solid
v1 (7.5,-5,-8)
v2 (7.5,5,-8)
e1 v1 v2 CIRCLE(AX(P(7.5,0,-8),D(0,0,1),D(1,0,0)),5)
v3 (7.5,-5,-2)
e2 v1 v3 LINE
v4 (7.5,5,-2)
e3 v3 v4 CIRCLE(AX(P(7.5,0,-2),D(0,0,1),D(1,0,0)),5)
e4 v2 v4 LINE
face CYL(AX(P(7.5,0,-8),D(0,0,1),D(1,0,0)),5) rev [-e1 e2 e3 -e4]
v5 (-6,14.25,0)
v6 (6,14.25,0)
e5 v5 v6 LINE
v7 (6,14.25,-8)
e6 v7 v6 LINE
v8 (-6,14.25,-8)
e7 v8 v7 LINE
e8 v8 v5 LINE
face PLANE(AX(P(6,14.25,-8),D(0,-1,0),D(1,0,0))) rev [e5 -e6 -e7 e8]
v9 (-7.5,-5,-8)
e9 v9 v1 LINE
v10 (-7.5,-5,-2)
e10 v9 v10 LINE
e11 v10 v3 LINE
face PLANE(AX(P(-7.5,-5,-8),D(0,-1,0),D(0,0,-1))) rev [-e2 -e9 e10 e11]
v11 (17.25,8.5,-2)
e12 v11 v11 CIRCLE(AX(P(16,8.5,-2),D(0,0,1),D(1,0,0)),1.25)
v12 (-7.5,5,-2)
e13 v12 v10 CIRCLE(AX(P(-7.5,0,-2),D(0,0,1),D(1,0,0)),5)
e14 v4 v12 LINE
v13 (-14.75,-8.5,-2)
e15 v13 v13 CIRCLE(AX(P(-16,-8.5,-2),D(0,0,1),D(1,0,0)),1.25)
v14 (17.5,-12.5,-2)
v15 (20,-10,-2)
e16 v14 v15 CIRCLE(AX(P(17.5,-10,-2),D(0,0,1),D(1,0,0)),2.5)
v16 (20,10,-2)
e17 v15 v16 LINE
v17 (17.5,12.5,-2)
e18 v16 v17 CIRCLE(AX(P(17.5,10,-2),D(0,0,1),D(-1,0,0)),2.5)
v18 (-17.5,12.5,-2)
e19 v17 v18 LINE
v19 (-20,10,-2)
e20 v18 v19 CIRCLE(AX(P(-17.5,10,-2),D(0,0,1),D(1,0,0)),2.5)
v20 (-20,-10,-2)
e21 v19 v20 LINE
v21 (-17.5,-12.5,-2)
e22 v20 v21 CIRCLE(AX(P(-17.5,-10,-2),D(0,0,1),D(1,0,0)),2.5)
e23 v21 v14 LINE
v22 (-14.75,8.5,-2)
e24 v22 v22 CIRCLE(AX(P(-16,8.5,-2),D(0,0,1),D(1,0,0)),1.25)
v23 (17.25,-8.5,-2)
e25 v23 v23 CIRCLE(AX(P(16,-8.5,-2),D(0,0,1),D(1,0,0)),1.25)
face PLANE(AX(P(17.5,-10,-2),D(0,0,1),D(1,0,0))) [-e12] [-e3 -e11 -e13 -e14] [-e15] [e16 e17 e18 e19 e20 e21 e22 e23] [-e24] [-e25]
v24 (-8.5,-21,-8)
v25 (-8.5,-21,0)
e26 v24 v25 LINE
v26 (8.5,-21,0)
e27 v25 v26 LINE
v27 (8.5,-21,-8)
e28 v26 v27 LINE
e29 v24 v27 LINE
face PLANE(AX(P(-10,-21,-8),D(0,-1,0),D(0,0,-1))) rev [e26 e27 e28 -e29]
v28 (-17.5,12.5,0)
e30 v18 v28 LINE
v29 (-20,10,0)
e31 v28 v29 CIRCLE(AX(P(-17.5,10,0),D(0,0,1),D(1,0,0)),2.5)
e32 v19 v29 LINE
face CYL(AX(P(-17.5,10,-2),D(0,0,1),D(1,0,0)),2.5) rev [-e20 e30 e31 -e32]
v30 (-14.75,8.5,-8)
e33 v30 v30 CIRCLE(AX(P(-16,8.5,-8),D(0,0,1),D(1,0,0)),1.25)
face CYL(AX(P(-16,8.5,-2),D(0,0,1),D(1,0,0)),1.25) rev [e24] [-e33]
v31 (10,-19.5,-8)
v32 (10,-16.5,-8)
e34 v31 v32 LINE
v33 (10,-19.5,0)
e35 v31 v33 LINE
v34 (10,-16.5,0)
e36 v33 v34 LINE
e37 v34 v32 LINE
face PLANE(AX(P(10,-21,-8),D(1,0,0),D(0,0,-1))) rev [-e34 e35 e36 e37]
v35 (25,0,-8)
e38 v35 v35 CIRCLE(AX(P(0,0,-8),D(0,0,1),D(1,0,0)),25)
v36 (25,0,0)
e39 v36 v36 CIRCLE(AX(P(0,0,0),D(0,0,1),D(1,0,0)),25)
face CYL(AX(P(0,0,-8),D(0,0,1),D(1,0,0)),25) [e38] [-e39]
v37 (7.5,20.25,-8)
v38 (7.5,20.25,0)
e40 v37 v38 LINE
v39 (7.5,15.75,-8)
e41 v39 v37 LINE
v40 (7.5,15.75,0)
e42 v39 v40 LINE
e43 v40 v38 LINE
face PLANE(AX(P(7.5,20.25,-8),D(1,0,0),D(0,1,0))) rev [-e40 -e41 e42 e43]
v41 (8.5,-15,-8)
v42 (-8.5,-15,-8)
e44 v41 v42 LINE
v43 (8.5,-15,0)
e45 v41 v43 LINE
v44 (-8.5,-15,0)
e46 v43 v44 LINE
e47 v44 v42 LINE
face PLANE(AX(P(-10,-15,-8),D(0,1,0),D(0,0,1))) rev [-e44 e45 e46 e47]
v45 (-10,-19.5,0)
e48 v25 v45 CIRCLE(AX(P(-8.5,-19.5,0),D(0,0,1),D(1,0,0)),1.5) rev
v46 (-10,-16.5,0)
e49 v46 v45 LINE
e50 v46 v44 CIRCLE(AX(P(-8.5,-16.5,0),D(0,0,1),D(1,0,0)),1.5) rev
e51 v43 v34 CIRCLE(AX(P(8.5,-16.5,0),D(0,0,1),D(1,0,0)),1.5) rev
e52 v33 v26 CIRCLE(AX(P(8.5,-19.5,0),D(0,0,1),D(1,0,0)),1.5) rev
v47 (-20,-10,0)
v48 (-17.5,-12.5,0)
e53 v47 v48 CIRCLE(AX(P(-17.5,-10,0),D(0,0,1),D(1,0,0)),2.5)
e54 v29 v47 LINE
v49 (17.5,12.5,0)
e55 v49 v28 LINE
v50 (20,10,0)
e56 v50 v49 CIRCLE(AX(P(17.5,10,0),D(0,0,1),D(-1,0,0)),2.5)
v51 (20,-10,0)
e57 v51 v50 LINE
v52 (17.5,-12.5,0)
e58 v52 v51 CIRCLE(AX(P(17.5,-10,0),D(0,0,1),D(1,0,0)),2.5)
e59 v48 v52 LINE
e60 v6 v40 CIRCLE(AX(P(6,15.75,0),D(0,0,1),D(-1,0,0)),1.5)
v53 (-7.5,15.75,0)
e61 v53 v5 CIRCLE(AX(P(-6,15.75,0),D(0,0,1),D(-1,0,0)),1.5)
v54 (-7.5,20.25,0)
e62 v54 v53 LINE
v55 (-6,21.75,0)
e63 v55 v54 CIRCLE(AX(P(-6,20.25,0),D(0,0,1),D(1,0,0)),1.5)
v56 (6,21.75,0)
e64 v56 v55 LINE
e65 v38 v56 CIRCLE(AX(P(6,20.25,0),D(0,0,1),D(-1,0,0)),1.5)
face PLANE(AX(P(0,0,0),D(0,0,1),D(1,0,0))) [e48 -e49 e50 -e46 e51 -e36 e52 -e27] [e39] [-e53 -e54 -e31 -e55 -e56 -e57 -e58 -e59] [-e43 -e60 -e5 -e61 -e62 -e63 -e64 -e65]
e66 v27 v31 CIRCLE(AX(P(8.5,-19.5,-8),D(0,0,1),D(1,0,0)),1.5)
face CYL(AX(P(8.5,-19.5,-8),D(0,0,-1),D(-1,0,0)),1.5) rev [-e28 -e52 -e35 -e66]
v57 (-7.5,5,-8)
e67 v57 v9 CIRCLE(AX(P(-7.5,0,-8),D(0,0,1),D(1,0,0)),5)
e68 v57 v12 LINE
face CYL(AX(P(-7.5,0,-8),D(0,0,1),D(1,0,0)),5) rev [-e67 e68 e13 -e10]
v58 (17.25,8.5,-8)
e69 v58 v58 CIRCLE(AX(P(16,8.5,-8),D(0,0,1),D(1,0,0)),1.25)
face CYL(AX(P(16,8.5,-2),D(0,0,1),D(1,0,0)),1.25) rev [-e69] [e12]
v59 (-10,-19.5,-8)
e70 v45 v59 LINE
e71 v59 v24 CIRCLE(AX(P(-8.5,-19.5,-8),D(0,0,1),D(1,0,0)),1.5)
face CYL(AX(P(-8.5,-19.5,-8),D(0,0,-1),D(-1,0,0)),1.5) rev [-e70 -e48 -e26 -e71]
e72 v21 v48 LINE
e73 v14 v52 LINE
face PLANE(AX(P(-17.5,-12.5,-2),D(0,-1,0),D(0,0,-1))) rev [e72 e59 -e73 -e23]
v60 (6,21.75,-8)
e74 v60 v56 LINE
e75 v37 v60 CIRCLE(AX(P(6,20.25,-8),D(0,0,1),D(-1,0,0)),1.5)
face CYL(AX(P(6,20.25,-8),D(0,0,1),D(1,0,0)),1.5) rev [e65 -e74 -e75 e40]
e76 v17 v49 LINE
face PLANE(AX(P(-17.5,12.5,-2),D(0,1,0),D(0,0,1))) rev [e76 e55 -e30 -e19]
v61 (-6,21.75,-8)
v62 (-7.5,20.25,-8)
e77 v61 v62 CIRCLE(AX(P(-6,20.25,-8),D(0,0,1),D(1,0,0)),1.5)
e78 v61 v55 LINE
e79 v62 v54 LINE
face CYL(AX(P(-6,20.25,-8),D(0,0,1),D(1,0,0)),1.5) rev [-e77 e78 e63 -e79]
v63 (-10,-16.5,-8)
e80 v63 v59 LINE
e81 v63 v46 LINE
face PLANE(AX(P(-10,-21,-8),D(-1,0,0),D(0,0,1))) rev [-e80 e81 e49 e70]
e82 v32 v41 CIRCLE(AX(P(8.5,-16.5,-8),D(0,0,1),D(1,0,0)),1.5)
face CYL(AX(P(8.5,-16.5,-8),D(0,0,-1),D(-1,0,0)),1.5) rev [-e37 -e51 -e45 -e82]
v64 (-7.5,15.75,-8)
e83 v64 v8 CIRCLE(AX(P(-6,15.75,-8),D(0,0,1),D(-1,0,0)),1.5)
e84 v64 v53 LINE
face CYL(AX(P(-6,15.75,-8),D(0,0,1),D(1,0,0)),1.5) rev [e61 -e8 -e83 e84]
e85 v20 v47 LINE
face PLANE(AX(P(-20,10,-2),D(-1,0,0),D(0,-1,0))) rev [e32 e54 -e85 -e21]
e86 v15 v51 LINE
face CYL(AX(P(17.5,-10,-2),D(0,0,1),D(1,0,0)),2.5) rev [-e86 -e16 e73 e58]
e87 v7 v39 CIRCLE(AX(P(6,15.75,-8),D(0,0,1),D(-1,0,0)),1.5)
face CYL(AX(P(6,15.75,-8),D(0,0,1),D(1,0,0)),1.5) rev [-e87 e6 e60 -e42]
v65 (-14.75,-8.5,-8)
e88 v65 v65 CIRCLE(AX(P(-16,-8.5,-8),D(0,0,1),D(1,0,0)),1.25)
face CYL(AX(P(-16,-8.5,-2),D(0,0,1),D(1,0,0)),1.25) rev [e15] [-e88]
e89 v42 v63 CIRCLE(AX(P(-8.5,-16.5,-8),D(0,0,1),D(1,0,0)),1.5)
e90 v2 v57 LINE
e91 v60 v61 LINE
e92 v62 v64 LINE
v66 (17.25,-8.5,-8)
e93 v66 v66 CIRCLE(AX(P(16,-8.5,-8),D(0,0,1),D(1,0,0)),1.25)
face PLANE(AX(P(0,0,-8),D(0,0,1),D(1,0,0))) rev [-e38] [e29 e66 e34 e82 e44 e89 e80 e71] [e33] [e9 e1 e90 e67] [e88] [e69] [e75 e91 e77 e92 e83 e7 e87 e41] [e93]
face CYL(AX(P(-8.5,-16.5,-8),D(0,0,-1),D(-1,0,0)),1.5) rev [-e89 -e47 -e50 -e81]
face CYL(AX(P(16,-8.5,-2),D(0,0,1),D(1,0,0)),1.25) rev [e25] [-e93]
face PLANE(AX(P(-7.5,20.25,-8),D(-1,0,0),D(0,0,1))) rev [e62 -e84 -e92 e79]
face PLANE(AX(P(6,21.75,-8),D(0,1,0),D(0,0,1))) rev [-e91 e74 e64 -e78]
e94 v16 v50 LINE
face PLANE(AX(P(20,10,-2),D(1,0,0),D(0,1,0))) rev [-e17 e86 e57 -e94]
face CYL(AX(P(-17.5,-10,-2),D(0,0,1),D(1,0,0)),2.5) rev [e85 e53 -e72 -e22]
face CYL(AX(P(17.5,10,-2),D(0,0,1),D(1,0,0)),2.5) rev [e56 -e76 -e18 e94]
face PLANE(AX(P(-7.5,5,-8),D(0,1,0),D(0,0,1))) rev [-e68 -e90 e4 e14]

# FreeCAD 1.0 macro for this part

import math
import FreeCAD as App
import Part
import Sketcher

V = App.Vector
Q = App.Units.Quantity


def edges_at(feature, points):
    """Names of the edges that pass closest to the given points."""
    edges = feature.Shape.Edges
    near = lambda p: min(range(len(edges)), key=lambda i: edges[i].distToShape(Part.Vertex(*p))[0])
    return sorted({f"Edge{near(p) + 1}" for p in points})

doc = App.newDocument("Part")
body = doc.addObject("PartDesign::Body", "Body")

# Sketch on XY plane
sketch1 = body.newObject("Sketcher::SketchObject", "Sketch")
sketch1.AttachmentSupport = (doc.getObject("XY_Plane"), [""])
sketch1.MapMode = "FlatFace"
sketch1.addGeometry(Part.Circle(V(0, 0, 0), V(0, 0, 1), 25), False)
sketch1.addConstraint(Sketcher.Constraint("Coincident", 0, 3, -1, 1))
sketch1.addConstraint(Sketcher.Constraint("Diameter", 0, Q("50 mm")))
pad1 = body.newObject("PartDesign::Pad", "Pad")
pad1.Profile = sketch1
pad1.Length = 8
pad1.Reversed = True

# Sketch on XY plane
sketch2 = body.newObject("Sketcher::SketchObject", "Sketch001")
sketch2.AttachmentSupport = (doc.getObject("XY_Plane"), [""])
sketch2.MapMode = "FlatFace"
sketch2.addGeometry(Part.LineSegment(V(17.5, 12.5, 0), V(-17.5, 12.5, 0)), False)
sketch2.addGeometry(Part.ArcOfCircle(Part.Circle(V(-17.5, 10, 0), V(0, 0, 1), 2.5), math.radians(90), math.radians(180)), False)
sketch2.addGeometry(Part.LineSegment(V(-20, 10, 0), V(-20, -10, 0)), False)
sketch2.addGeometry(Part.ArcOfCircle(Part.Circle(V(-17.5, -10, 0), V(0, 0, 1), 2.5), math.radians(180), math.radians(270)), False)
sketch2.addGeometry(Part.LineSegment(V(-17.5, -12.5, 0), V(17.5, -12.5, 0)), False)
sketch2.addGeometry(Part.ArcOfCircle(Part.Circle(V(17.5, -10, 0), V(0, 0, 1), 2.5), math.radians(-90), math.radians(0)), False)
sketch2.addGeometry(Part.LineSegment(V(20, -10, 0), V(20, 10, 0)), False)
sketch2.addGeometry(Part.ArcOfCircle(Part.Circle(V(17.5, 10, 0), V(0, 0, 1), 2.5), math.radians(0), math.radians(90)), False)
sketch2.addConstraint(Sketcher.Constraint("Tangent", 0, 2, 1, 1))
sketch2.addConstraint(Sketcher.Constraint("Tangent", 1, 2, 2, 1))
sketch2.addConstraint(Sketcher.Constraint("Tangent", 2, 2, 3, 1))
sketch2.addConstraint(Sketcher.Constraint("Tangent", 3, 2, 4, 1))
sketch2.addConstraint(Sketcher.Constraint("Tangent", 4, 2, 5, 1))
sketch2.addConstraint(Sketcher.Constraint("Tangent", 5, 2, 6, 1))
sketch2.addConstraint(Sketcher.Constraint("Tangent", 6, 2, 7, 1))
sketch2.addConstraint(Sketcher.Constraint("Tangent", 7, 2, 0, 1))
sketch2.addConstraint(Sketcher.Constraint("Horizontal", 0))
sketch2.addConstraint(Sketcher.Constraint("Vertical", 2))
sketch2.addConstraint(Sketcher.Constraint("Horizontal", 4))
sketch2.addConstraint(Sketcher.Constraint("Vertical", 6))
sketch2.addConstraint(Sketcher.Constraint("Equal", 1, 3))
sketch2.addConstraint(Sketcher.Constraint("Equal", 3, 5))
sketch2.addConstraint(Sketcher.Constraint("Equal", 5, 7))
sketch2.addConstraint(Sketcher.Constraint("Symmetric", 1, 3, 5, 3, -1, 1))
sketch2.addConstraint(Sketcher.Constraint("Radius", 1, Q("2.5 mm")))
sketch2.addConstraint(Sketcher.Constraint("DistanceX", 0, 2, 0, 1, Q("35 mm")))
sketch2.addConstraint(Sketcher.Constraint("DistanceY", 2, 2, 2, 1, Q("20 mm")))
pocket1 = body.newObject("PartDesign::Pocket", "Pocket")
pocket1.Profile = sketch2
pocket1.Length = 2

# Sketch on XY plane
sketch3 = body.newObject("Sketcher::SketchObject", "Sketch002")
sketch3.AttachmentSupport = (doc.getObject("XY_Plane"), [""])
sketch3.MapMode = "FlatFace"
sketch3.AttachmentOffset = App.Placement(V(0, 0, -2), App.Rotation())
sketch3.addGeometry(Part.LineSegment(V(8, 5, 0), V(-8, 5, 0)), False)
sketch3.addGeometry(Part.ArcOfCircle(Part.Circle(V(-8, 0, 0), V(0, 0, 1), 5), math.radians(90), math.radians(270)), False)
sketch3.addGeometry(Part.LineSegment(V(-8, -5, 0), V(8, -5, 0)), False)
sketch3.addGeometry(Part.ArcOfCircle(Part.Circle(V(8, 0, 0), V(0, 0, 1), 5), math.radians(-90), math.radians(90)), False)
sketch3.addConstraint(Sketcher.Constraint("Tangent", 0, 2, 1, 1))
sketch3.addConstraint(Sketcher.Constraint("Tangent", 1, 2, 2, 1))
sketch3.addConstraint(Sketcher.Constraint("Tangent", 2, 2, 3, 1))
sketch3.addConstraint(Sketcher.Constraint("Tangent", 3, 2, 0, 1))
sketch3.addConstraint(Sketcher.Constraint("Horizontal", 0))
sketch3.addConstraint(Sketcher.Constraint("Horizontal", 2))
sketch3.addConstraint(Sketcher.Constraint("Symmetric", 1, 3, 3, 3, -1, 1))
sketch3.addConstraint(Sketcher.Constraint("Radius", 1, Q("5 mm")))
sketch3.addConstraint(Sketcher.Constraint("DistanceX", 0, 2, 0, 1, Q("15 mm")))
pocket2 = body.newObject("PartDesign::Pocket", "Pocket001")
pocket2.Profile = sketch3
pocket2.Type = "ThroughAll"

# Sketch on XY plane
sketch4 = body.newObject("Sketcher::SketchObject", "Sketch003")
sketch4.AttachmentSupport = (doc.getObject("XY_Plane"), [""])
sketch4.MapMode = "FlatFace"
sketch4.AttachmentOffset = App.Placement(V(0, 0, -2), App.Rotation())
sketch4.addGeometry(Part.Circle(V(16, 8.5, 0), V(0, 0, 1), 1.2), False)
sketch4.addGeometry(Part.Circle(V(-16, 8.5, 0), V(0, 0, 1), 1.2), False)
sketch4.addGeometry(Part.Circle(V(-16, -8.5, 0), V(0, 0, 1), 1.2), False)
sketch4.addGeometry(Part.Circle(V(16, -8.5, 0), V(0, 0, 1), 1.2), False)
sketch4.addConstraint(Sketcher.Constraint("Equal", 0, 1))
sketch4.addConstraint(Sketcher.Constraint("Equal", 1, 2))
sketch4.addConstraint(Sketcher.Constraint("Equal", 2, 3))
sketch4.addConstraint(Sketcher.Constraint("Symmetric", 0, 3, 2, 3, -1, 1))
sketch4.addConstraint(Sketcher.Constraint("Symmetric", 1, 3, 3, 3, -1, 1))
sketch4.addConstraint(Sketcher.Constraint("Symmetric", 0, 3, 1, 3, -2))
sketch4.addConstraint(Sketcher.Constraint("Diameter", 0, Q("2.5 mm")))
sketch4.addConstraint(Sketcher.Constraint("DistanceX", -1, 1, 0, 3, Q("16 mm")))
sketch4.addConstraint(Sketcher.Constraint("DistanceY", 2, 3, 1, 3, Q("17 mm")))
doc.recompute()
hole = body.newObject("PartDesign::Hole", "Hole")
hole.Profile = sketch4
hole.ThreadType = "None"
hole.Diameter = 2.5
hole.DepthType = "ThroughAll"

# Sketch on XY plane
sketch5 = body.newObject("Sketcher::SketchObject", "Sketch004")
sketch5.AttachmentSupport = (doc.getObject("XY_Plane"), [""])
sketch5.MapMode = "FlatFace"
sketch5.addGeometry(Part.LineSegment(V(6, 21.8, 0), V(-6, 21.8, 0)), False)
sketch5.addGeometry(Part.ArcOfCircle(Part.Circle(V(-6, 20.3, 0), V(0, 0, 1), 1.5), math.radians(90), math.radians(180)), False)
sketch5.addGeometry(Part.LineSegment(V(-7.5, 20.2, 0), V(-7.5, 15.8, 0)), False)
sketch5.addGeometry(Part.ArcOfCircle(Part.Circle(V(-6, 15.7, 0), V(0, 0, 1), 1.5), math.radians(180), math.radians(270)), False)
sketch5.addGeometry(Part.LineSegment(V(-6, 14.2, 0), V(6, 14.2, 0)), False)
sketch5.addGeometry(Part.ArcOfCircle(Part.Circle(V(6, 15.7, 0), V(0, 0, 1), 1.5), math.radians(-90), math.radians(0)), False)
sketch5.addGeometry(Part.LineSegment(V(7.5, 15.8, 0), V(7.5, 20.2, 0)), False)
sketch5.addGeometry(Part.ArcOfCircle(Part.Circle(V(6, 20.3, 0), V(0, 0, 1), 1.5), math.radians(0), math.radians(90)), False)
sketch5.addConstraint(Sketcher.Constraint("Tangent", 0, 2, 1, 1))
sketch5.addConstraint(Sketcher.Constraint("Tangent", 1, 2, 2, 1))
sketch5.addConstraint(Sketcher.Constraint("Tangent", 2, 2, 3, 1))
sketch5.addConstraint(Sketcher.Constraint("Tangent", 3, 2, 4, 1))
sketch5.addConstraint(Sketcher.Constraint("Tangent", 4, 2, 5, 1))
sketch5.addConstraint(Sketcher.Constraint("Tangent", 5, 2, 6, 1))
sketch5.addConstraint(Sketcher.Constraint("Tangent", 6, 2, 7, 1))
sketch5.addConstraint(Sketcher.Constraint("Tangent", 7, 2, 0, 1))
sketch5.addConstraint(Sketcher.Constraint("Horizontal", 0))
sketch5.addConstraint(Sketcher.Constraint("Vertical", 2))
sketch5.addConstraint(Sketcher.Constraint("Horizontal", 4))
sketch5.addConstraint(Sketcher.Constraint("Vertical", 6))
sketch5.addConstraint(Sketcher.Constraint("Equal", 1, 3))
sketch5.addConstraint(Sketcher.Constraint("Equal", 3, 5))
sketch5.addConstraint(Sketcher.Constraint("Equal", 5, 7))
sketch5.addConstraint(Sketcher.Constraint("Radius", 1, Q("1.5 mm")))
sketch5.addConstraint(Sketcher.Constraint("DistanceX", 0, 2, 0, 1, Q("12 mm")))
sketch5.addConstraint(Sketcher.Constraint("DistanceY", 2, 2, 2, 1, Q("4.5 mm")))
sketch5.addConstraint(Sketcher.Constraint("DistanceX", 1, 3, -1, 1, Q("6 mm")))
sketch5.addConstraint(Sketcher.Constraint("DistanceY", -1, 1, 1, 3, Q("20.25 mm")))
pocket3 = body.newObject("PartDesign::Pocket", "Pocket002")
pocket3.Profile = sketch5
pocket3.Type = "ThroughAll"

# Sketch on XY plane
sketch6 = body.newObject("Sketcher::SketchObject", "Sketch005")
sketch6.AttachmentSupport = (doc.getObject("XY_Plane"), [""])
sketch6.MapMode = "FlatFace"
sketch6.addGeometry(Part.LineSegment(V(-10, -15, 0), V(-10, -21, 0)), False)
sketch6.addGeometry(Part.LineSegment(V(-10, -21, 0), V(10, -21, 0)), False)
sketch6.addGeometry(Part.LineSegment(V(10, -21, 0), V(10, -15, 0)), False)
sketch6.addGeometry(Part.LineSegment(V(10, -15, 0), V(-10, -15, 0)), False)
sketch6.addConstraint(Sketcher.Constraint("Coincident", 0, 2, 1, 1))
sketch6.addConstraint(Sketcher.Constraint("Coincident", 1, 2, 2, 1))
sketch6.addConstraint(Sketcher.Constraint("Coincident", 2, 2, 3, 1))
sketch6.addConstraint(Sketcher.Constraint("Coincident", 3, 2, 0, 1))
sketch6.addConstraint(Sketcher.Constraint("Vertical", 0))
sketch6.addConstraint(Sketcher.Constraint("Horizontal", 1))
sketch6.addConstraint(Sketcher.Constraint("Vertical", 2))
sketch6.addConstraint(Sketcher.Constraint("Horizontal", 3))
sketch6.addConstraint(Sketcher.Constraint("DistanceX", 1, 1, 1, 2, Q("20 mm")))
sketch6.addConstraint(Sketcher.Constraint("DistanceY", 0, 2, 0, 1, Q("6 mm")))
sketch6.addConstraint(Sketcher.Constraint("DistanceX", 0, 2, -1, 1, Q("10 mm")))
sketch6.addConstraint(Sketcher.Constraint("DistanceY", 0, 2, -1, 1, Q("21 mm")))
pocket4 = body.newObject("PartDesign::Pocket", "Pocket003")
pocket4.Profile = sketch6
pocket4.Type = "ThroughAll"
doc.recompute()

fillet = body.newObject("PartDesign::Fillet", "Fillet")
fillet.Base = (pocket4, edges_at(pocket4, [
    (10, -15, -4),
    (10, -21, -4),
    (-10, -21, -4),
    (-10, -15, -4),
]))
fillet.Radius = 1.5

doc.recompute()
